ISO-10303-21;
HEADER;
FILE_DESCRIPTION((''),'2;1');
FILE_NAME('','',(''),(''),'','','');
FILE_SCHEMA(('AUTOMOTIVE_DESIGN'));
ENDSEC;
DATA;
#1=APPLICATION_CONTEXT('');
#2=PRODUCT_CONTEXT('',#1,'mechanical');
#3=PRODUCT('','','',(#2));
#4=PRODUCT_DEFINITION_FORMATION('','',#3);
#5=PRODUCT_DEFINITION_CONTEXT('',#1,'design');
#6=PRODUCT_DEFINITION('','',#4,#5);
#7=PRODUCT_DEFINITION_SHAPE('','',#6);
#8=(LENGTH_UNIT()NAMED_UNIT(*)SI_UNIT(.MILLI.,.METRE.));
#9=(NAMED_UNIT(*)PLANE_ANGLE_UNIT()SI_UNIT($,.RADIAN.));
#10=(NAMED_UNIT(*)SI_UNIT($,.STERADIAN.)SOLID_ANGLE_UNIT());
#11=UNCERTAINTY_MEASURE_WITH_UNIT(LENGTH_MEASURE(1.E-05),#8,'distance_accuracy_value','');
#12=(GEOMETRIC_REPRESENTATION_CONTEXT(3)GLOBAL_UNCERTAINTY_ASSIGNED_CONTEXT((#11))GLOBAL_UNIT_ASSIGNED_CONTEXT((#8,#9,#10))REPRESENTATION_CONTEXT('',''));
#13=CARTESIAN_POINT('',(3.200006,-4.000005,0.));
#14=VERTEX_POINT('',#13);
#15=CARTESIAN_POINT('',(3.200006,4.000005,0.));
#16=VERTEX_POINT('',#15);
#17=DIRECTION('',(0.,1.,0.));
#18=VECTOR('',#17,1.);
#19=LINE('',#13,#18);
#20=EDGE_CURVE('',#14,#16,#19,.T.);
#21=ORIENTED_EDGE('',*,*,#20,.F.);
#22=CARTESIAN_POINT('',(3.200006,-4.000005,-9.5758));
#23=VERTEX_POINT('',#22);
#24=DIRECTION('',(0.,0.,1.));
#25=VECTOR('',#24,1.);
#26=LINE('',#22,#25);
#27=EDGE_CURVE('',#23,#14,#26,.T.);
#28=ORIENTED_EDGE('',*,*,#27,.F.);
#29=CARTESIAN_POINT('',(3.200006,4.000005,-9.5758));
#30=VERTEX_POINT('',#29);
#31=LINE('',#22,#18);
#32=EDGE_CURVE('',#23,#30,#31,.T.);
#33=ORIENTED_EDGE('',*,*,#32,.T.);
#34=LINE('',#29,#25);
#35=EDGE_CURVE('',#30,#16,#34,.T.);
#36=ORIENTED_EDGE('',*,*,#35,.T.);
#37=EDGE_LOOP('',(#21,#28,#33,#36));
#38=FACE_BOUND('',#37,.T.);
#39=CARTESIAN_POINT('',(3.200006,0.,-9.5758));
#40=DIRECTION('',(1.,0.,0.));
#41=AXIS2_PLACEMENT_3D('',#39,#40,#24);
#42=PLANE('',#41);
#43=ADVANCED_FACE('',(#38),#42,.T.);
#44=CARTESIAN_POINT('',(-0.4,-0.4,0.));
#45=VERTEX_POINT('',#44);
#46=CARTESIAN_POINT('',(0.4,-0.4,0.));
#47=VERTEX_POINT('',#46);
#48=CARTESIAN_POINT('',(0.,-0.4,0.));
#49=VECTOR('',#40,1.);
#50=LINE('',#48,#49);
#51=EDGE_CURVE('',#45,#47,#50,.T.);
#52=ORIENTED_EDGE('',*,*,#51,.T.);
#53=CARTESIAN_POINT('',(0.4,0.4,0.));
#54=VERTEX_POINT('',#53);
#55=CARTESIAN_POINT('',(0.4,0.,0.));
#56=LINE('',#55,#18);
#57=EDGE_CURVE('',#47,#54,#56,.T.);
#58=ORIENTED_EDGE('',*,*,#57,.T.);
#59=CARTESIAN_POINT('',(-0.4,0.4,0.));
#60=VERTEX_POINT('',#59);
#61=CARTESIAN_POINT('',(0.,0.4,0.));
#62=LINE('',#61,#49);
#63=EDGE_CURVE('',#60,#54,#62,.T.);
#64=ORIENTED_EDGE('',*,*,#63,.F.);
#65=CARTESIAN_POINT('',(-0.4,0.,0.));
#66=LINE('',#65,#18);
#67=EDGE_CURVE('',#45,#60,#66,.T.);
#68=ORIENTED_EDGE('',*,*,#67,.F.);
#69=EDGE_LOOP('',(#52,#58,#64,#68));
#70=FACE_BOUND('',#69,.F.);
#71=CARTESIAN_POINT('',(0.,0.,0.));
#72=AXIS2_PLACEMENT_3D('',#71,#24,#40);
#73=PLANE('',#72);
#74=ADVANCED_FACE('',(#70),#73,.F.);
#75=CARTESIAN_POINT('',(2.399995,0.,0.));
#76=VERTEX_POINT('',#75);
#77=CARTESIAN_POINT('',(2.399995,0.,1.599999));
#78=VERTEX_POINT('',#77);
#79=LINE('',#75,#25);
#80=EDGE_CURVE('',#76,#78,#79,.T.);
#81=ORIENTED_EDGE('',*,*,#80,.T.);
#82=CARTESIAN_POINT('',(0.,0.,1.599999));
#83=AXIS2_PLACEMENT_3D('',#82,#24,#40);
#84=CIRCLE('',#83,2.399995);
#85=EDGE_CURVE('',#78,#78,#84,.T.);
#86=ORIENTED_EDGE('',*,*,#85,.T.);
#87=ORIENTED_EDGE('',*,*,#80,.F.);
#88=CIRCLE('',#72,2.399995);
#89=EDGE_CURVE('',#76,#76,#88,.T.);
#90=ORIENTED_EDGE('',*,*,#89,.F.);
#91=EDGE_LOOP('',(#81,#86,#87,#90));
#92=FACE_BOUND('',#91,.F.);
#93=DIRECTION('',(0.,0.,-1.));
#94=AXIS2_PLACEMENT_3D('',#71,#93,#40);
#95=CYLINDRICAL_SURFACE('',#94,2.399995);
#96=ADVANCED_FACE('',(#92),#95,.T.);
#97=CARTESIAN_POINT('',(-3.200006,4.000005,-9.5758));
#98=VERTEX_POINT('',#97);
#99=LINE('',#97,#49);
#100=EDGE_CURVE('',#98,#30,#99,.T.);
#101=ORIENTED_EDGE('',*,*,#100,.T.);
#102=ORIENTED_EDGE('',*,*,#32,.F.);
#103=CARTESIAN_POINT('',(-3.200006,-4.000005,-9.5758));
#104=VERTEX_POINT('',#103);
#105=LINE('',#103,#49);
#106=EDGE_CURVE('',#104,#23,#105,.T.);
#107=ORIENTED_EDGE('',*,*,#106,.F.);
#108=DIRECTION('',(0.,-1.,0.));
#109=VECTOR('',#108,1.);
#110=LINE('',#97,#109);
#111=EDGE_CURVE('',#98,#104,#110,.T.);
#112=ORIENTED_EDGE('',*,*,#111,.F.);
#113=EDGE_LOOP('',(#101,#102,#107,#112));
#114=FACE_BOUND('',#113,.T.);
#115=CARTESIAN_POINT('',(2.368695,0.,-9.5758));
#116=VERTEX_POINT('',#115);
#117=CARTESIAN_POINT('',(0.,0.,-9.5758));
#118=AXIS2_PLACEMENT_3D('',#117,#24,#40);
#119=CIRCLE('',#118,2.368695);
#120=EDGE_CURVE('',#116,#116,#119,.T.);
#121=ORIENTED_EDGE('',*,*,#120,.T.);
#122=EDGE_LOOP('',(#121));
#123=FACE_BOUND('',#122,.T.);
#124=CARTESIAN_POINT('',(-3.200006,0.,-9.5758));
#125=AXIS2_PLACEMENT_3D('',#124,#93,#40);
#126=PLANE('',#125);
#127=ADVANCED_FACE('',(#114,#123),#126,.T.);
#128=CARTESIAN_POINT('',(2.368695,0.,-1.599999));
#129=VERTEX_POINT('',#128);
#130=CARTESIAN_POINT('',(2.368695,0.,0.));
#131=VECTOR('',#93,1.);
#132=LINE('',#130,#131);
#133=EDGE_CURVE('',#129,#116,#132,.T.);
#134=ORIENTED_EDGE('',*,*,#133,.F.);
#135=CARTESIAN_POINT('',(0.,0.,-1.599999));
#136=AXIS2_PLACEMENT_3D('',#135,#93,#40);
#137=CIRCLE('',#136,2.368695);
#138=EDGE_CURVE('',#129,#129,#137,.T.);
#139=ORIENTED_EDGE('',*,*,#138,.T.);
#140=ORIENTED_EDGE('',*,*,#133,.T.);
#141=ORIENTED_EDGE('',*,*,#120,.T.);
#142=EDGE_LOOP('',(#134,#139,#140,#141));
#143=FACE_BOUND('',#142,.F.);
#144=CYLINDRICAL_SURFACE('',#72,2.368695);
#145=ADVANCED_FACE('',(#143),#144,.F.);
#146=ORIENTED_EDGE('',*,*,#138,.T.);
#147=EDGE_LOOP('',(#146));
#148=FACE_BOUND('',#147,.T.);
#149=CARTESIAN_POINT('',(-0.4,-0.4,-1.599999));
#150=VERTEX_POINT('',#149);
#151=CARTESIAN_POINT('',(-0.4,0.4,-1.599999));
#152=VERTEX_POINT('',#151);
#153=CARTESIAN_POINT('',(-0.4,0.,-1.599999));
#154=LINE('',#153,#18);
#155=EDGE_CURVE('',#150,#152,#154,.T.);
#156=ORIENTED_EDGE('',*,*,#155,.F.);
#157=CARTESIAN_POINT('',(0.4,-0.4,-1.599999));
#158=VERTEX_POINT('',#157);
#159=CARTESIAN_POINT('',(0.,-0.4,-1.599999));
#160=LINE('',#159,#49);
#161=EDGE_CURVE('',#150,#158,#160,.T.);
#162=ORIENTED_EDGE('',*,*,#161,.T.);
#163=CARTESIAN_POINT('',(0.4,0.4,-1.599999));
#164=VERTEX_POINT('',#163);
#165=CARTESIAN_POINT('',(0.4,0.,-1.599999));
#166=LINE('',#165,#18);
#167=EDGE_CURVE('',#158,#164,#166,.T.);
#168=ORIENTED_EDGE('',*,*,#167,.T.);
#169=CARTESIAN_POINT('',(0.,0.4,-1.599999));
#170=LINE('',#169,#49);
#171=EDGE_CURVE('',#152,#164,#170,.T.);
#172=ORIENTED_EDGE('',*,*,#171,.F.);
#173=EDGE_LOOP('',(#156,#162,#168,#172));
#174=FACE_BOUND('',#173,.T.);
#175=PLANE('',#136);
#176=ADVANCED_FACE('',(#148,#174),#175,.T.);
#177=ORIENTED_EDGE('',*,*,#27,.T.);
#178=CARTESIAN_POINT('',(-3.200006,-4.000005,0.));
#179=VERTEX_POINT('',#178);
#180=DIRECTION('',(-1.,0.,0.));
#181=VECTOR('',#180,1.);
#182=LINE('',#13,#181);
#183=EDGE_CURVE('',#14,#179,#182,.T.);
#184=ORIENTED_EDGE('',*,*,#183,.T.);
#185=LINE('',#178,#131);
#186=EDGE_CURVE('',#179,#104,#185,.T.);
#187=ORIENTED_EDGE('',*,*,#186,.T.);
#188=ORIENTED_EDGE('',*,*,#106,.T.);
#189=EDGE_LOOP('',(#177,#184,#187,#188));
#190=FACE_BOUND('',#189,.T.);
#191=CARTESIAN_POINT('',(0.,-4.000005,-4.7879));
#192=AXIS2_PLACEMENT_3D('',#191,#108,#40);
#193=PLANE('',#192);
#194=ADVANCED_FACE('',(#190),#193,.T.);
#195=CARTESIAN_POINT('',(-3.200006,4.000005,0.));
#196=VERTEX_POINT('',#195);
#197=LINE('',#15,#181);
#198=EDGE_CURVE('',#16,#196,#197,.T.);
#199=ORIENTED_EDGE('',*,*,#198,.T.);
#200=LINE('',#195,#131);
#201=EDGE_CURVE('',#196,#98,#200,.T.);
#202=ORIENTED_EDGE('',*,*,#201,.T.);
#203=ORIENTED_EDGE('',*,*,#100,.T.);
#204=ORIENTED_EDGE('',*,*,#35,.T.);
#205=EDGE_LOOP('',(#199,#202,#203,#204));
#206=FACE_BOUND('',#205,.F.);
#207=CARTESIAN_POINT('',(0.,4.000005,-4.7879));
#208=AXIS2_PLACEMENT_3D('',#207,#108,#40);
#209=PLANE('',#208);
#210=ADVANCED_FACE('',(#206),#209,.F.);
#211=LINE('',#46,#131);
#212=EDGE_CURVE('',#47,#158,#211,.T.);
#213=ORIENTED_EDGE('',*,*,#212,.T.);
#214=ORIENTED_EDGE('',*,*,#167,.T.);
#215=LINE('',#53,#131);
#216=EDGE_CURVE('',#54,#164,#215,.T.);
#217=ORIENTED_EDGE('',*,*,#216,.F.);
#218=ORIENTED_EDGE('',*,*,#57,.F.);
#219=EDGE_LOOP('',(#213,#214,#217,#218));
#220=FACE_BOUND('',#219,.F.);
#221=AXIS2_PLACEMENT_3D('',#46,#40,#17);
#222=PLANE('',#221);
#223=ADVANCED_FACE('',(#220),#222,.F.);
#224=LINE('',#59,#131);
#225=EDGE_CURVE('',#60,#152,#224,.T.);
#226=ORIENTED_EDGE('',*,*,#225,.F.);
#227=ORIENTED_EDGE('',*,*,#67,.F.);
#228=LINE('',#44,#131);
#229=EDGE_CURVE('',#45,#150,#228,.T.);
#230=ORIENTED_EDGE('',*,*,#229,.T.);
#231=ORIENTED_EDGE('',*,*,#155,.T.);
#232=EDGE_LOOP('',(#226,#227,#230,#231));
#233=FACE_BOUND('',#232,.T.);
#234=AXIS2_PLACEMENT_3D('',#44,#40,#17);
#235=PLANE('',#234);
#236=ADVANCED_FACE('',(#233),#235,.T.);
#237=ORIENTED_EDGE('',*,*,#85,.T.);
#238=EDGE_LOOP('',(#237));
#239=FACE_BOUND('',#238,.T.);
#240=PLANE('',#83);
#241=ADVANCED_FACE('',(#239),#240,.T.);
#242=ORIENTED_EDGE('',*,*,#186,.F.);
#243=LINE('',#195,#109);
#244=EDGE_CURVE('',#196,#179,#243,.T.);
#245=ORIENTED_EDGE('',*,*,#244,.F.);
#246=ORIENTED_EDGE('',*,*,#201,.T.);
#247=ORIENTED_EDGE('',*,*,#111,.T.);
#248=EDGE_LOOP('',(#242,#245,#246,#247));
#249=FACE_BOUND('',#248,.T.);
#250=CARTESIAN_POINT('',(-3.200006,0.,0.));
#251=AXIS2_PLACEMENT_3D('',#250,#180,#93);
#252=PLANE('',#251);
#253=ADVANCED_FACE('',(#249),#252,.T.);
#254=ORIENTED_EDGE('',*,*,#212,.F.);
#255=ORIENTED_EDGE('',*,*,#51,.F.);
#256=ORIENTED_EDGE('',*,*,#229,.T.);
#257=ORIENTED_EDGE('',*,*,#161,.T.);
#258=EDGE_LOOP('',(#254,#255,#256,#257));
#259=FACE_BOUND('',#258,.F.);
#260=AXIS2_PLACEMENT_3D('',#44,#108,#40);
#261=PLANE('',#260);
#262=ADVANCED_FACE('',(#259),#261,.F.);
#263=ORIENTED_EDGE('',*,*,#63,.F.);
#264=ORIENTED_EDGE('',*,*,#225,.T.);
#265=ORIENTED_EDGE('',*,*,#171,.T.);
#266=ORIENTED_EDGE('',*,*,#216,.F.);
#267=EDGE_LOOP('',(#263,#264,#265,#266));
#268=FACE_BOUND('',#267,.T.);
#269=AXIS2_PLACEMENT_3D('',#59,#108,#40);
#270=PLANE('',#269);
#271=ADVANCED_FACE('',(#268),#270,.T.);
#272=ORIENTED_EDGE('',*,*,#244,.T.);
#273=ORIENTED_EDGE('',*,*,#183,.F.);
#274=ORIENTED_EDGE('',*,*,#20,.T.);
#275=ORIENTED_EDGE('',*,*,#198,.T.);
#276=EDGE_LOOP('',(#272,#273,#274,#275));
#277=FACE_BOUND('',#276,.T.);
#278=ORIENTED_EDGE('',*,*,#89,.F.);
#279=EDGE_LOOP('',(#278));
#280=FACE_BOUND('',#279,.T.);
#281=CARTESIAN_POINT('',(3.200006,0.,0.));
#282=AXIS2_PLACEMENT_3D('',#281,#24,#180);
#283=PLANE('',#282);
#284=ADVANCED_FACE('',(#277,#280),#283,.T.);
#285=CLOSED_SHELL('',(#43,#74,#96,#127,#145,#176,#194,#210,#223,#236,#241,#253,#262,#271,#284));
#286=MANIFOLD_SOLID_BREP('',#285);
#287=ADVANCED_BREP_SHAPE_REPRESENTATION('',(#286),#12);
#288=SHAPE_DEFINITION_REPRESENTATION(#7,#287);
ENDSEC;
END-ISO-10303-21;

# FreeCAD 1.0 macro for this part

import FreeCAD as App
import Part
import Sketcher
from FreeCAD import Vector


def add_polygon(sketch, points):
    """Adds a closed chain of lines whose ends are joined by coincident constraints."""
    first, n = sketch.GeometryCount, len(points)
    for a, b in zip(points, points[1:] + points[:1]):
        sketch.addGeometry(Part.LineSegment(App.Vector(*a, 0), App.Vector(*b, 0)), False)
    for i in range(n):
        sketch.addConstraint(Sketcher.Constraint("Coincident", first + i, 2, first + (i + 1) % n, 1))

doc = App.newDocument("Part")
body = doc.addObject("PartDesign::Body", "Body")

# Sketch on XZ plane
sketch1 = body.newObject("Sketcher::SketchObject", "Sketch")
sketch1.AttachmentSupport = (doc.getObject("XZ_Plane"), [""])
sketch1.MapMode = "FlatFace"
add_polygon(sketch1, [(3, 0), (-3, 0), (-3, -10), (3, -10)])  # lines 0-3
sketch1.addConstraint([
    Sketcher.Constraint("Horizontal", 0),
    Sketcher.Constraint("Vertical", 1),
    Sketcher.Constraint("Horizontal", 2),
    Sketcher.Constraint("Vertical", 3),
    Sketcher.Constraint("Symmetric", 0, 2, 3, 2, -1, 1),
    Sketcher.Constraint("DistanceY", 1, 2, 1, 1, 9.5758),
    Sketcher.Constraint("DistanceX", 0, 2, 0, 1, 6.400012),
])
pad1 = body.newObject("PartDesign::Pad", "Pad")
pad1.Profile = sketch1
pad1.Length = 8.00001
pad1.Midplane = True

# Sketch on XY plane
sketch2 = body.newObject("Sketcher::SketchObject", "Sketch001")
sketch2.AttachmentSupport = (doc.getObject("XY_Plane"), [""])
sketch2.MapMode = "FlatFace"
sketch2.addGeometry(Part.Circle(Vector(0, 0, 0), Vector(0, 0, 1), 2.4), False)
sketch2.addConstraint([
    Sketcher.Constraint("Coincident", 0, 3, -1, 1),
    Sketcher.Constraint("Diameter", 0, 4.79999),
])
pad2 = body.newObject("PartDesign::Pad", "Pad001")
pad2.Profile = sketch2
pad2.Length = 1.599999

# Sketch on XY plane
sketch3 = body.newObject("Sketcher::SketchObject", "Sketch002")
sketch3.AttachmentSupport = (doc.getObject("XY_Plane"), [""])
sketch3.MapMode = "FlatFace"
sketch3.addGeometry(Part.Circle(Vector(0, 0, 0), Vector(0, 0, 1), 2.4), False)
sketch3.addConstraint([
    Sketcher.Constraint("Coincident", 0, 3, -1, 1),
    Sketcher.Constraint("Diameter", 0, 4.73739),
])
pocket1 = body.newObject("PartDesign::Pocket", "Pocket")
pocket1.Profile = sketch3
pocket1.Length = 25.4

# Sketch on XY plane
sketch4 = body.newObject("Sketcher::SketchObject", "Sketch003")
sketch4.AttachmentSupport = (doc.getObject("XY_Plane"), [""])
sketch4.MapMode = "FlatFace"
sketch4.addGeometry(Part.Circle(Vector(0, 0, 0), Vector(0, 0, 1), 2.4), False)
sketch4.addConstraint([
    Sketcher.Constraint("Coincident", 0, 3, -1, 1),
    Sketcher.Constraint("Diameter", 0, 4.73739),
])
pad3 = body.newObject("PartDesign::Pad", "Pad002")
pad3.Profile = sketch4
pad3.Length = 1.599999
pad3.Reversed = True

# Sketch on XY plane
sketch5 = body.newObject("Sketcher::SketchObject", "Sketch004")
sketch5.AttachmentSupport = (doc.getObject("XY_Plane"), [""])
sketch5.MapMode = "FlatFace"
add_polygon(sketch5, [(-0.4, 0.4), (-0.4, -0.4), (0.4, -0.4), (0.4, 0.4)])  # lines 0-3
sketch5.addConstraint([
    Sketcher.Constraint("Vertical", 0),
    Sketcher.Constraint("Horizontal", 1),
    Sketcher.Constraint("Vertical", 2),
    Sketcher.Constraint("Horizontal", 3),
    Sketcher.Constraint("Symmetric", 0, 2, 2, 2, -1, 1),
    Sketcher.Constraint("Equal", 3, 0),
    Sketcher.Constraint("DistanceX", 1, 1, 1, 2, 0.8),
])
pocket2 = body.newObject("PartDesign::Pocket", "Pocket001")
pocket2.Profile = sketch5
pocket2.Length = 1.599999

doc.recompute()
